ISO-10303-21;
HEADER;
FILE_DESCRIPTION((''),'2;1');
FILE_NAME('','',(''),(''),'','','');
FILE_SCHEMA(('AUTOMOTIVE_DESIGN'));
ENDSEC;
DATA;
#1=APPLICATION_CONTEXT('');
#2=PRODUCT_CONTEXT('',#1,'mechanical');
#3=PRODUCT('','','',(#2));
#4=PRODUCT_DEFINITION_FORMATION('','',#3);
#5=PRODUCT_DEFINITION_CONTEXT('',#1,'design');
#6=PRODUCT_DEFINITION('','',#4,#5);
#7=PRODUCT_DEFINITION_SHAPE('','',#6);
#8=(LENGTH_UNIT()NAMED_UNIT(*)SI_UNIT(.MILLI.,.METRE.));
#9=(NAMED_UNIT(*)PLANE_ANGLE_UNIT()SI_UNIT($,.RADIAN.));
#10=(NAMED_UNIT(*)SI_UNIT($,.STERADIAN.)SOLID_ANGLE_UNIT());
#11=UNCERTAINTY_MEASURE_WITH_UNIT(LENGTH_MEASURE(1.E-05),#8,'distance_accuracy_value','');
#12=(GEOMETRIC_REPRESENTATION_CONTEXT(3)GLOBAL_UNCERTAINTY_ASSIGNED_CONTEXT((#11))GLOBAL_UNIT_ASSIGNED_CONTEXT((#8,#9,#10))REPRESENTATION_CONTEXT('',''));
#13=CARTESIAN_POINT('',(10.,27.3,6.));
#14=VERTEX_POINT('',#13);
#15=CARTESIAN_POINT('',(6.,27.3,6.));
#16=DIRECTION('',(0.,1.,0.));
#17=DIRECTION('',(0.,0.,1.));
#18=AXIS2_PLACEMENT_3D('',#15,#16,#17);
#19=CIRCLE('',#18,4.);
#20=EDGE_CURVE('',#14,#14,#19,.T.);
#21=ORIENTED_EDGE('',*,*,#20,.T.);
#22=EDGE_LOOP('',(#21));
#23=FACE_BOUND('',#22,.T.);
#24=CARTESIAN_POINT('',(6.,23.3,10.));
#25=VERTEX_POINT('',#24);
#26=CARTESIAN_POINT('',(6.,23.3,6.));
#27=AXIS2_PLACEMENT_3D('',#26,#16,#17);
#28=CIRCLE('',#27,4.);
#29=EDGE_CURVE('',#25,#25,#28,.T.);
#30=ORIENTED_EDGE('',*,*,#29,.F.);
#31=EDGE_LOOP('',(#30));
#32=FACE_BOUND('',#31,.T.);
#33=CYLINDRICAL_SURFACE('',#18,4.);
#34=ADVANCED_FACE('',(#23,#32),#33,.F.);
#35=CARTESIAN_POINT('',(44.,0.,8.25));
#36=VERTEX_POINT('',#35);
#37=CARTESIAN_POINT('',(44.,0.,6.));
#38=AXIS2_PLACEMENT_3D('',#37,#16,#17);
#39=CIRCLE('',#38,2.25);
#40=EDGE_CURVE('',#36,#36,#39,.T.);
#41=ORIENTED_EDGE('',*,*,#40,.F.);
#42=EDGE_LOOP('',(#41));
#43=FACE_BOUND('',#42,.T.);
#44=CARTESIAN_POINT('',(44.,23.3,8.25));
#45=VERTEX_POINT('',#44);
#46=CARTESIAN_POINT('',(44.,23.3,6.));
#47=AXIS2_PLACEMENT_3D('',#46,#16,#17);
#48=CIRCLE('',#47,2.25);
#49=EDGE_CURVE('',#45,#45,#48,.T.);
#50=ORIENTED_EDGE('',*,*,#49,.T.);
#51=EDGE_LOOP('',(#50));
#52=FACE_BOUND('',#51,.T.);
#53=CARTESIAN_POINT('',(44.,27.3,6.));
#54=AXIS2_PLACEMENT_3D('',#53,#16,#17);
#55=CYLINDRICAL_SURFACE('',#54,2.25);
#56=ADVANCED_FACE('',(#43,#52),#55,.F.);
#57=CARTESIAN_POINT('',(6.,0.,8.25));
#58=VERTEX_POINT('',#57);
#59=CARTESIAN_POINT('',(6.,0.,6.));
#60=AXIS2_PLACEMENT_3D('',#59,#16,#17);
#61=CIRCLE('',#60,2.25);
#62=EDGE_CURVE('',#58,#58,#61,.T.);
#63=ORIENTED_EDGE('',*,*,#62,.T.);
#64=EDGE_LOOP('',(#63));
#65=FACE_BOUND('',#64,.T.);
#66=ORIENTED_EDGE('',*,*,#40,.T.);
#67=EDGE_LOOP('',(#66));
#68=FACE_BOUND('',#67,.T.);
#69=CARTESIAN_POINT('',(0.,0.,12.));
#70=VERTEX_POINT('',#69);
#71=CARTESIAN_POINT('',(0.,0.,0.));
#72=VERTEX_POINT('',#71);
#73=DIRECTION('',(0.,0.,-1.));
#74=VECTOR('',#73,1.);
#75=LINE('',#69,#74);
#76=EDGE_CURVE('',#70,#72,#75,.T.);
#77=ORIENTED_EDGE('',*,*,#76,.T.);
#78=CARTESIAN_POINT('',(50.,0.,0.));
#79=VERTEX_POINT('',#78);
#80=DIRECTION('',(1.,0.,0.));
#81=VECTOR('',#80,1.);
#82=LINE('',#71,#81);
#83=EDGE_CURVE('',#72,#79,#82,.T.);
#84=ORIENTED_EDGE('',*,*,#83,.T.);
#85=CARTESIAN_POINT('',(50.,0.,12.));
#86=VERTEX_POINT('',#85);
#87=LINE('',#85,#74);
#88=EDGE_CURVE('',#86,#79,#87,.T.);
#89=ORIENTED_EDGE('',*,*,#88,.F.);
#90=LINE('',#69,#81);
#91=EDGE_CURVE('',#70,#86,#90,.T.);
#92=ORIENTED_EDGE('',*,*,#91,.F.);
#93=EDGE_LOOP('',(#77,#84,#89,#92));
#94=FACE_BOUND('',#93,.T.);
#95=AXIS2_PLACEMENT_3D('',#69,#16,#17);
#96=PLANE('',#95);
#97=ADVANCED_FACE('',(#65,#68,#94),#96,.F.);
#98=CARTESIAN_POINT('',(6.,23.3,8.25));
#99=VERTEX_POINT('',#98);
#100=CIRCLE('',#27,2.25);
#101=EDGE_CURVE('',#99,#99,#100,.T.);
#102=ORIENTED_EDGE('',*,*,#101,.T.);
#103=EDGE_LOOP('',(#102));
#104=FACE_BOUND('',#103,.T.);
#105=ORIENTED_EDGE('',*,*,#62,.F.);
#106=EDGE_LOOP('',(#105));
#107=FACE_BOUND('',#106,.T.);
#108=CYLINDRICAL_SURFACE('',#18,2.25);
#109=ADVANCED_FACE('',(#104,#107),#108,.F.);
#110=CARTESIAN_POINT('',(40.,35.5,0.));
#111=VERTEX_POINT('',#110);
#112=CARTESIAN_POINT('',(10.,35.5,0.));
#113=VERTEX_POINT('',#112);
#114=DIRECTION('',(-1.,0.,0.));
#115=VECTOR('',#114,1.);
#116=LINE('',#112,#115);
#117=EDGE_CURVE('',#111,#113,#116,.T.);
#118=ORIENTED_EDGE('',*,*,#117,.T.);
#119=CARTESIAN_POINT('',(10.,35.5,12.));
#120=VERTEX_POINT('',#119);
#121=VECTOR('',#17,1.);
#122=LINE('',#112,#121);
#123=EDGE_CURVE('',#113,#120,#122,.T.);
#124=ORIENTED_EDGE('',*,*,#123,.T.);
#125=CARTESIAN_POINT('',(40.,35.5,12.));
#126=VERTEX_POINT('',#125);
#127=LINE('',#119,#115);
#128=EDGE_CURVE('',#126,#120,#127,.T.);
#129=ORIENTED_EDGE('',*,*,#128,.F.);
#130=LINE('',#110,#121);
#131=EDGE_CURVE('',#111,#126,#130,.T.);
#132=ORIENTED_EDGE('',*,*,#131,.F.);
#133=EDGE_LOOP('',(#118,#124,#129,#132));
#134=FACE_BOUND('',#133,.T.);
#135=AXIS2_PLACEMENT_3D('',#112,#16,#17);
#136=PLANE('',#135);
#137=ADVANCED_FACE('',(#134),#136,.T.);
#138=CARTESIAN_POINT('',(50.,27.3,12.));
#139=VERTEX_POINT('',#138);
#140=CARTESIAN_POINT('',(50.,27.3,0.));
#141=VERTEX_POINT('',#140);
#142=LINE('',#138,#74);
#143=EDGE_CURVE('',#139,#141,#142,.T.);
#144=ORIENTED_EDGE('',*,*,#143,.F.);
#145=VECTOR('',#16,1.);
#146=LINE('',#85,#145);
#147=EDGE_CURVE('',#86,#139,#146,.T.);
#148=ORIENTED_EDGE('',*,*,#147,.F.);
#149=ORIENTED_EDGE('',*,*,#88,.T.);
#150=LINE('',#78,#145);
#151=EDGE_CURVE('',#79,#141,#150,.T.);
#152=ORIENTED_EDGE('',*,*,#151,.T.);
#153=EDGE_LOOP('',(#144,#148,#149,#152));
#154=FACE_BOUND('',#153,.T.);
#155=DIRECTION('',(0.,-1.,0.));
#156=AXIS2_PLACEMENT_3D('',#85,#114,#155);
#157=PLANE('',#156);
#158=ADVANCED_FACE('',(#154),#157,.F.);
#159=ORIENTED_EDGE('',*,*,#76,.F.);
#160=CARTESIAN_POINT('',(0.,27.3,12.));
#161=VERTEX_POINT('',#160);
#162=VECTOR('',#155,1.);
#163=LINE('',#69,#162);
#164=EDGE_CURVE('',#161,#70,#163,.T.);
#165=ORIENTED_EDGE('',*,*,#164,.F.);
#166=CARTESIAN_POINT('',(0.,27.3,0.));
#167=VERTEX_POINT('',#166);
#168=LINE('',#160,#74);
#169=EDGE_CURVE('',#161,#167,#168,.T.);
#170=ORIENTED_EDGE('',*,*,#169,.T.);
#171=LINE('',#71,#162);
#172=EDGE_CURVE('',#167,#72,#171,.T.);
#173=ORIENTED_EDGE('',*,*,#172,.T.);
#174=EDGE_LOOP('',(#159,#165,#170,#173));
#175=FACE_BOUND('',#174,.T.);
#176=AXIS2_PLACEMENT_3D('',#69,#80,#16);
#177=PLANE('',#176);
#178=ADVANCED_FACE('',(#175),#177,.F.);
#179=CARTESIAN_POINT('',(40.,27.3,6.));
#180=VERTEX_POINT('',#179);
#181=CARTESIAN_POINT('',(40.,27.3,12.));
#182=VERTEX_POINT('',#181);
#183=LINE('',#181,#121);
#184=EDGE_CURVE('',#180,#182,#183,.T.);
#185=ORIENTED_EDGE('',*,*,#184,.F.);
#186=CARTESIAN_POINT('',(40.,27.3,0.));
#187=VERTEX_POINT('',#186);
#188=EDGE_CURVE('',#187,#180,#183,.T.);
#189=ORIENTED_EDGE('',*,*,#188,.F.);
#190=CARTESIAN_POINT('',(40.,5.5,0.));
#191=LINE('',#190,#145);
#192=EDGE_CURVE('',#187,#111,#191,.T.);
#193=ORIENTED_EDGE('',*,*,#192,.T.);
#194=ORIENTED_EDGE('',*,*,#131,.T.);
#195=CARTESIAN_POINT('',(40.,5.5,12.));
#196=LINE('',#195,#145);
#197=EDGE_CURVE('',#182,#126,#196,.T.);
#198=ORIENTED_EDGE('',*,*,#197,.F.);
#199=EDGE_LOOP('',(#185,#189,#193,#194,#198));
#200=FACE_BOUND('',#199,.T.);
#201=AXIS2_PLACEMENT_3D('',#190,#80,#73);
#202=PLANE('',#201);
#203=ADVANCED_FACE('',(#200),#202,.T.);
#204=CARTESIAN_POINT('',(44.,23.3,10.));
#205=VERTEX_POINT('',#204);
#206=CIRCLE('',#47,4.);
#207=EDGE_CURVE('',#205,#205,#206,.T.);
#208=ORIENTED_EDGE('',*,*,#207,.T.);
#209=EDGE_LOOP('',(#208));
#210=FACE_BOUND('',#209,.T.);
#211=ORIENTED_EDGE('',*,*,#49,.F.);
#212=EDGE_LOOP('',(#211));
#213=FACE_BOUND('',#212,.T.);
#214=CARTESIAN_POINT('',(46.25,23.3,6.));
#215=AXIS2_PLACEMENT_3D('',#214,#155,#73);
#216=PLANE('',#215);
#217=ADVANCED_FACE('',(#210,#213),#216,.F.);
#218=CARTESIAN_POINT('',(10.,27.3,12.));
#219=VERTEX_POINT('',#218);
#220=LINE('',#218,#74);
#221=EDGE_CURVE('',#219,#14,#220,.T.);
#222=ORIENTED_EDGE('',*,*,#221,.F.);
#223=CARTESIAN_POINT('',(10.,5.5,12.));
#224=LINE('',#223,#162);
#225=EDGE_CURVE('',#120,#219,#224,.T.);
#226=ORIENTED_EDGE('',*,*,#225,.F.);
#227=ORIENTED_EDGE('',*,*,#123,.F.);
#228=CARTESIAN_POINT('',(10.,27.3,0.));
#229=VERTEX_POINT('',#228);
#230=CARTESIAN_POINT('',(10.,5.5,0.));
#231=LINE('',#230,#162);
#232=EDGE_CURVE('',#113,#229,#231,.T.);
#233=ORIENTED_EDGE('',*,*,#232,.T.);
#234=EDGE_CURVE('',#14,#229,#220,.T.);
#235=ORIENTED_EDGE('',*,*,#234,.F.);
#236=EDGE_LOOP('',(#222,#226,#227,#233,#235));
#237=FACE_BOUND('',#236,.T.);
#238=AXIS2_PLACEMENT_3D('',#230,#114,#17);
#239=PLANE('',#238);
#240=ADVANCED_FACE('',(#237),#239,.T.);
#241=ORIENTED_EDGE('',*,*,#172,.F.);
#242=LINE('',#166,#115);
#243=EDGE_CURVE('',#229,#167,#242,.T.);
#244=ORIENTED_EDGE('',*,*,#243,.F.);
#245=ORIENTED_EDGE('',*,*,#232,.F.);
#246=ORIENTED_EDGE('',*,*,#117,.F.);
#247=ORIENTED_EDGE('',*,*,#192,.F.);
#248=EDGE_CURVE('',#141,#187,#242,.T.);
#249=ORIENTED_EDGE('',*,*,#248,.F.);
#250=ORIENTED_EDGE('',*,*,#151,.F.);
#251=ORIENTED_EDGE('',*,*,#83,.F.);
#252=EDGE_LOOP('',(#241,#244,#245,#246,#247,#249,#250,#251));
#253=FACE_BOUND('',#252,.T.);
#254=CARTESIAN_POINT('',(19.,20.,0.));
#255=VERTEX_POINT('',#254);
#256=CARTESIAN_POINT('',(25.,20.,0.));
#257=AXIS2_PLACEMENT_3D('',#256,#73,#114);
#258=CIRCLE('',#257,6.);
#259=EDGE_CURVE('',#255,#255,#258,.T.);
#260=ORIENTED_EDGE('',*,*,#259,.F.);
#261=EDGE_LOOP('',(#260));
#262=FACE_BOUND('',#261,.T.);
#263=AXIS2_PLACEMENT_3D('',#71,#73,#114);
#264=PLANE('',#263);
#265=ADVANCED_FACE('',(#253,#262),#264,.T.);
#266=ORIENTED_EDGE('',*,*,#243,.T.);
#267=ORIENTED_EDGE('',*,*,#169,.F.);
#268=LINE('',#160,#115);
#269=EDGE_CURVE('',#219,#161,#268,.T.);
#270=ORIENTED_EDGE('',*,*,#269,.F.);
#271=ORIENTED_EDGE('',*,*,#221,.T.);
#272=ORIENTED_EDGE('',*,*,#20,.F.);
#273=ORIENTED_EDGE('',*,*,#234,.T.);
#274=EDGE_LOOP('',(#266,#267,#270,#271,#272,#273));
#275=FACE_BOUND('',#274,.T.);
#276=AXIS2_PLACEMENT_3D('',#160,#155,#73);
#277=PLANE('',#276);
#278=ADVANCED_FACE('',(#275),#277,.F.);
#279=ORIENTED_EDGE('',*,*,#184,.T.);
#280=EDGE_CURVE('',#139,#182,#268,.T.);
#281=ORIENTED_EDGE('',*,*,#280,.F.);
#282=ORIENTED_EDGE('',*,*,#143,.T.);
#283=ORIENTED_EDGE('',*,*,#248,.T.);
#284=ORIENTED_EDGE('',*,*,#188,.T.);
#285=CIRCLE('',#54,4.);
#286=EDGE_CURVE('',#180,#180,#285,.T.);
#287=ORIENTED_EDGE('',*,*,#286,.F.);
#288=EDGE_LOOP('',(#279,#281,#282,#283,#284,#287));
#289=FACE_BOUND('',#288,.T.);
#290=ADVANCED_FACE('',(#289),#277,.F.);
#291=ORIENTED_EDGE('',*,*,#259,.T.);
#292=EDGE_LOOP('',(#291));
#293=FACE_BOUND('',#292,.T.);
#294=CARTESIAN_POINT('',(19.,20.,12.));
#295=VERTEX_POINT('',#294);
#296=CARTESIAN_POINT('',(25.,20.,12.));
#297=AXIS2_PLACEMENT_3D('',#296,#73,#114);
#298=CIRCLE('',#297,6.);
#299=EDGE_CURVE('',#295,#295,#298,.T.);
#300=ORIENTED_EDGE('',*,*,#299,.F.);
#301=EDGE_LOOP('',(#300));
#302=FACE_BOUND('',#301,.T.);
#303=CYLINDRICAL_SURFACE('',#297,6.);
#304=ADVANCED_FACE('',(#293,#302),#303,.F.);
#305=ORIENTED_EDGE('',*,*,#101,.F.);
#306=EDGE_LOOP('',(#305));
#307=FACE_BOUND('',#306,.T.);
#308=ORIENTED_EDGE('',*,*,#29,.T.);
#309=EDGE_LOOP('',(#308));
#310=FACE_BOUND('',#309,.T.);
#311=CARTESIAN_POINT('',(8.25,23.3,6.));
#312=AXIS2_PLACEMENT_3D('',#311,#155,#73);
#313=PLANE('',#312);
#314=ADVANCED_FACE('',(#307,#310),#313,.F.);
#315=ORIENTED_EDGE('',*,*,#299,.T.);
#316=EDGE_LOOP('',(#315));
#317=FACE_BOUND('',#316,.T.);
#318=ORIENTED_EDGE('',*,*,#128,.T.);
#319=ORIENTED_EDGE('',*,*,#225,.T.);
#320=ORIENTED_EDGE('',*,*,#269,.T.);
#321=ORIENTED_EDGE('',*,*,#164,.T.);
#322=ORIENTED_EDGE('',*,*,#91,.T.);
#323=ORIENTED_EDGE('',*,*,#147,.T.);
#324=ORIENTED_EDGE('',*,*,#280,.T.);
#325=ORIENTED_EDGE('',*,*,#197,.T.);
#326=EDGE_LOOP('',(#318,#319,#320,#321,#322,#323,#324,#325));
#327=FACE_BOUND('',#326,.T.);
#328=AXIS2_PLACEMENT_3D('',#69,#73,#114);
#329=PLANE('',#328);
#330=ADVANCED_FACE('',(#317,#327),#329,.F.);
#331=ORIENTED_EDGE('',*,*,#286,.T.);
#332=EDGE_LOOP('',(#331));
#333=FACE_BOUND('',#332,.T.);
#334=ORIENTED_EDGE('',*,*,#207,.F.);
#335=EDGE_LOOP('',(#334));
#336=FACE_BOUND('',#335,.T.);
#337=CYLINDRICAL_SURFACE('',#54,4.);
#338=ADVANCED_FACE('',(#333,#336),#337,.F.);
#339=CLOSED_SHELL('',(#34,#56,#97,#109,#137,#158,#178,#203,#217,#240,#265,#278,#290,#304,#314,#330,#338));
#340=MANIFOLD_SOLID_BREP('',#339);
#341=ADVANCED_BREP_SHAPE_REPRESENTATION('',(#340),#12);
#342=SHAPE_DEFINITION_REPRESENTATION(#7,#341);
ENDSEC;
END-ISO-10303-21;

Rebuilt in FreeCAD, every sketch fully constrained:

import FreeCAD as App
import Part
import Sketcher
Q = App.Units.Quantity


def add_polygon(sketch, points):
    """Adds a closed chain of lines whose ends are joined by coincident constraints."""
    first, n = sketch.GeometryCount, len(points)
    for a, b in zip(points, points[1:] + points[:1]):
        sketch.addGeometry(Part.LineSegment(App.Vector(*a, 0), App.Vector(*b, 0)), False)
    for i in range(n):
        sketch.addConstraint(Sketcher.Constraint("Coincident", first + i, 2, first + (i + 1) % n, 1))

doc = App.newDocument("Part")
body = doc.addObject("PartDesign::Body", "Body")

# Sketch on XY plane
sketch1 = body.newObject("Sketcher::SketchObject", "Sketch")
sketch1.AttachmentSupport = (doc.getObject("XY_Plane"), [""])
sketch1.MapMode = "FlatFace"
add_polygon(sketch1, [(0, 27), (0, 0), (50, 0), (50, 27)])  # lines 0-3
sketch1.addConstraint(Sketcher.Constraint("Vertical", 0))
sketch1.addConstraint(Sketcher.Constraint("Horizontal", 1))
sketch1.addConstraint(Sketcher.Constraint("Vertical", 2))
sketch1.addConstraint(Sketcher.Constraint("Horizontal", 3))
sketch1.addConstraint(Sketcher.Constraint("Coincident", 0, 2, -1, 1))
sketch1.addConstraint(Sketcher.Constraint("DistanceX", 1, 1, 1, 2, Q("50 mm")))
sketch1.addConstraint(Sketcher.Constraint("DistanceY", 0, 2, 0, 1, Q("27.3 mm")))
pad1 = body.newObject("PartDesign::Pad", "Pad")
pad1.Profile = sketch1
pad1.Length = 12

# Sketch on XY plane
sketch2 = body.newObject("Sketcher::SketchObject", "Sketch001")
sketch2.AttachmentSupport = (doc.getObject("XY_Plane"), [""])
sketch2.MapMode = "FlatFace"
sketch2.AttachmentOffset = App.Placement(App.Vector(0, 0, 12), App.Rotation())
add_polygon(sketch2, [(10, 36), (10, 6), (40, 6), (40, 36)])  # lines 0-3
sketch2.addConstraint(Sketcher.Constraint("Vertical", 0))
sketch2.addConstraint(Sketcher.Constraint("Horizontal", 1))
sketch2.addConstraint(Sketcher.Constraint("Vertical", 2))
sketch2.addConstraint(Sketcher.Constraint("Horizontal", 3))
sketch2.addConstraint(Sketcher.Constraint("Equal", 3, 0))
sketch2.addConstraint(Sketcher.Constraint("DistanceX", 1, 1, 1, 2, Q("30 mm")))
sketch2.addConstraint(Sketcher.Constraint("DistanceX", -1, 1, 0, 2, Q("10 mm")))
sketch2.addConstraint(Sketcher.Constraint("DistanceY", -1, 1, 0, 2, Q("5.5 mm")))
pad2 = body.newObject("PartDesign::Pad", "Pad001")
pad2.Profile = sketch2
pad2.Length = 12
pad2.Reversed = True

# Sketch on XY plane
sketch3 = body.newObject("Sketcher::SketchObject", "Sketch002")
sketch3.AttachmentSupport = (doc.getObject("XY_Plane"), [""])
sketch3.MapMode = "FlatFace"
sketch3.addGeometry(Part.Circle(App.Vector(25, 20, 0), App.Vector(0, 0, 1), 6), False)
sketch3.addConstraint(Sketcher.Constraint("Diameter", 0, Q("12 mm")))
sketch3.addConstraint(Sketcher.Constraint("DistanceX", -1, 1, 0, 3, Q("25 mm")))
sketch3.addConstraint(Sketcher.Constraint("DistanceY", -1, 1, 0, 3, Q("20 mm")))
pocket1 = body.newObject("PartDesign::Pocket", "Pocket")
pocket1.Profile = sketch3
pocket1.Type = "ThroughAll"
pocket1.Reversed = True

# Sketch on XZ plane
sketch4 = body.newObject("Sketcher::SketchObject", "Sketch003")
sketch4.AttachmentSupport = (doc.getObject("XZ_Plane"), [""])
sketch4.MapMode = "FlatFace"
sketch4.AttachmentOffset = App.Placement(App.Vector(0, 0, -27.3), App.Rotation())
sketch4.addGeometry(Part.Circle(App.Vector(44, 6, 0), App.Vector(0, 0, 1), 2.2), False)
sketch4.addGeometry(Part.Circle(App.Vector(6, 6, 0), App.Vector(0, 0, 1), 2.2), False)
sketch4.addConstraint(Sketcher.Constraint("Equal", 0, 1))
sketch4.addConstraint(Sketcher.Constraint("Horizontal", 0, 3, 1, 3))
sketch4.addConstraint(Sketcher.Constraint("Diameter", 0, Q("4.5 mm")))
sketch4.addConstraint(Sketcher.Constraint("DistanceX", -1, 1, 0, 3, Q("44 mm")))
sketch4.addConstraint(Sketcher.Constraint("DistanceY", -1, 1, 0, 3, Q("6 mm")))
sketch4.addConstraint(Sketcher.Constraint("DistanceX", -1, 1, 1, 3, Q("6 mm")))
doc.recompute()
hole = body.newObject("PartDesign::Hole", "Hole")
hole.Profile = sketch4
hole.ThreadType = "None"
hole.Diameter = 4.5
hole.DepthType = "ThroughAll"
hole.HoleCutType = "Counterbore"
hole.HoleCutDiameter = 8
hole.HoleCutDepth = 4
hole.Reversed = True

doc.recompute()
